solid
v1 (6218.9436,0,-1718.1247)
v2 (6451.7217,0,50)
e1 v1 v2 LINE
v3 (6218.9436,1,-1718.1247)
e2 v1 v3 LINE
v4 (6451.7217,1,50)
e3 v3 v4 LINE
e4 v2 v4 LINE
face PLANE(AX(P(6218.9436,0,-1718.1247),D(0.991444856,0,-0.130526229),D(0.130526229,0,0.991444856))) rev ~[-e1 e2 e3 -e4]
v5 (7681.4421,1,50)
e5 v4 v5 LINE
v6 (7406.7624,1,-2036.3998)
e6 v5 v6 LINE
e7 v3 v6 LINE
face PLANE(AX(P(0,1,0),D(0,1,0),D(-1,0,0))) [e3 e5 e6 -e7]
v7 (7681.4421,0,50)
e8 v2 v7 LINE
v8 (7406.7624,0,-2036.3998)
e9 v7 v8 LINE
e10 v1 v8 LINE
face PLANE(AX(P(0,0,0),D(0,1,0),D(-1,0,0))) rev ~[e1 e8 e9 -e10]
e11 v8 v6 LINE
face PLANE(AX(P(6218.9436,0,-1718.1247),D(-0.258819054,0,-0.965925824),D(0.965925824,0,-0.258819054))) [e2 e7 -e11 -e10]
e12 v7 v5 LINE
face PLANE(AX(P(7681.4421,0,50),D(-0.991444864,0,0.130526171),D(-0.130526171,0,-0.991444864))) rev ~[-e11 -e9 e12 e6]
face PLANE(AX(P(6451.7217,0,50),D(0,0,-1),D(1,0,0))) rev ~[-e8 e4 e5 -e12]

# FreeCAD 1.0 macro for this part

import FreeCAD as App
import Part
import Sketcher
from FreeCAD import Vector
Q = App.Units.Quantity

doc = App.newDocument("Part")
params = doc.addObject("Spreadsheet::Sheet", "Params")
for row, (alias, value) in enumerate([
    ("pad1_length", "1 mm"),
], start=1):
    params.set(f"A{row}", alias)
    params.set(f"B{row}", "=" + value)
    params.setAlias(f"B{row}", alias)

body = doc.addObject("PartDesign::Body", "Body")

# Sketch on XZ plane
sketch1 = body.newObject("Sketcher::SketchObject", "Sketch")
sketch1.AttachmentSupport = (doc.getObject("XZ_Plane"), [""])
sketch1.MapMode = "FlatFace"
sketch1.addGeometry([
    Part.LineSegment(Vector(6451.7217, 50, 0), Vector(7681.4421, 50, 0)),
    Part.LineSegment(Vector(7681.4421, 50, 0), Vector(7406.7624, -2036.3998, 0)),
    Part.LineSegment(Vector(7406.7624, -2036.3998, 0), Vector(6218.9436, -1718.1247, 0)),
    Part.LineSegment(Vector(6218.9436, -1718.1247, 0), Vector(6451.7217, 50, 0)),
], False)
sketch1.addConstraint([
    Sketcher.Constraint("Coincident", 0, 2, 1, 1),
    Sketcher.Constraint("Coincident", 1, 2, 2, 1),
    Sketcher.Constraint("Coincident", 2, 2, 3, 1),
    Sketcher.Constraint("Coincident", 3, 2, 0, 1),
    Sketcher.Constraint("Horizontal", 0),
    Sketcher.Constraint("Parallel", 1, 3),
    Sketcher.Constraint("Angle", 2, Q("165 deg")),
    Sketcher.Constraint("DistanceY", -1, 1, 0, 2, Q("50 mm")),
    Sketcher.Constraint("Angle", 1, Q("-97.5 deg")),
    Sketcher.Constraint("DistanceX", 0, 1, 0, 2, Q("1229.7204 mm")),
    Sketcher.Constraint("DistanceX", -1, 1, 0, 2, Q("7681.442 mm")),
    Sketcher.Constraint("DistanceX", 2, 2, 3, 2, Q("232.778 mm")),
])
pad1 = body.newObject("PartDesign::Pad", "Pad")
pad1.Profile = sketch1
pad1.setExpression("Length", "Params.pad1_length")
pad1.Reversed = True

doc.recompute()
